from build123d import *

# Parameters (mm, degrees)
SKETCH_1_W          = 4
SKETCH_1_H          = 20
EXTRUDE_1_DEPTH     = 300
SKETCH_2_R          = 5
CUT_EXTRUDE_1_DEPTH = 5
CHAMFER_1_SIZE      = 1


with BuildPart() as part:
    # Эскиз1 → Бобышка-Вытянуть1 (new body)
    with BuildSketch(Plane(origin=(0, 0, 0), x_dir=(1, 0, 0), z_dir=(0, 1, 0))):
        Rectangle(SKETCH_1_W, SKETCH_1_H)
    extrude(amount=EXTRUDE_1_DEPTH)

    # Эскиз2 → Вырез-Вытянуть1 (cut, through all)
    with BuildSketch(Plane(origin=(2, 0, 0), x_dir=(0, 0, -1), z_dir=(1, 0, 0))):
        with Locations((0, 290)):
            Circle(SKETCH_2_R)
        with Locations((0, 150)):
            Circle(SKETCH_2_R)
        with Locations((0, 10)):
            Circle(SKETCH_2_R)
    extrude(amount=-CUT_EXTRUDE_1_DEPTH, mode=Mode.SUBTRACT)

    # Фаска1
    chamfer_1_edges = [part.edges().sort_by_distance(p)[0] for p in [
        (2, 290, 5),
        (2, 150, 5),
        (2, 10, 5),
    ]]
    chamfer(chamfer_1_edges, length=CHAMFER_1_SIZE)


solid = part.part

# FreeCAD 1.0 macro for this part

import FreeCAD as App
import Part
import Sketcher
Q = App.Units.Quantity


def edges_at(feature, points):
    """Names of the edges that pass closest to the given points."""
    edges = feature.Shape.Edges
    near = lambda p: min(range(len(edges)), key=lambda i: edges[i].distToShape(Part.Vertex(*p))[0])
    return sorted({f"Edge{near(p) + 1}" for p in points})


def add_polygon(sketch, points):
    """Adds a closed chain of lines whose ends are joined by coincident constraints."""
    first, n = sketch.GeometryCount, len(points)
    for a, b in zip(points, points[1:] + points[:1]):
        sketch.addGeometry(Part.LineSegment(App.Vector(*a, 0), App.Vector(*b, 0)), False)
    for i in range(n):
        sketch.addConstraint(Sketcher.Constraint("Coincident", first + i, 2, first + (i + 1) % n, 1))

doc = App.newDocument("Part")
body = doc.addObject("PartDesign::Body", "Body")

# Sketch on XZ plane
sketch1 = body.newObject("Sketcher::SketchObject", "Sketch")
sketch1.AttachmentSupport = (doc.getObject("XZ_Plane"), [""])
sketch1.MapMode = "FlatFace"
add_polygon(sketch1, [(-2, -10), (-2, 10), (2, 10), (2, -10)])  # lines 0-3
sketch1.addConstraint([
    Sketcher.Constraint("Vertical", 0),
    Sketcher.Constraint("Horizontal", 1),
    Sketcher.Constraint("Vertical", 2),
    Sketcher.Constraint("Horizontal", 3),
    Sketcher.Constraint("Symmetric", 0, 2, 2, 2, -1, 1),
    Sketcher.Constraint("DistanceX", 1, 1, 1, 2, Q("4 mm")),
    Sketcher.Constraint("DistanceY", 0, 1, 0, 2, Q("20 mm")),
])
pad1 = body.newObject("PartDesign::Pad", "Pad")
pad1.Profile = sketch1
pad1.Length = 300
pad1.Reversed = True

# Sketch on YZ plane
sketch2 = body.newObject("Sketcher::SketchObject", "Sketch001")
sketch2.AttachmentSupport = (doc.getObject("YZ_Plane"), [""])
sketch2.MapMode = "FlatFace"
sketch2.AttachmentOffset = App.Placement(App.Vector(0, 0, 2), App.Rotation())
sketch2.addGeometry([
    Part.Circle(App.Vector(290, 0, 0), App.Vector(0, 0, 1), 5),
    Part.Circle(App.Vector(150, 0, 0), App.Vector(0, 0, 1), 5),
    Part.Circle(App.Vector(10, 0, 0), App.Vector(0, 0, 1), 5),
], False)
sketch2.addConstraint([
    Sketcher.Constraint("Equal", 0, 1),
    Sketcher.Constraint("Equal", 1, 2),
    Sketcher.Constraint("PointOnObject", 0, 3, -1),
    Sketcher.Constraint("PointOnObject", 1, 3, -1),
    Sketcher.Constraint("PointOnObject", 2, 3, -1),
    Sketcher.Constraint("Diameter", 0, Q("10 mm")),
    Sketcher.Constraint("DistanceX", -1, 1, 0, 3, Q("290 mm")),
    Sketcher.Constraint("DistanceX", -1, 1, 1, 3, Q("150 mm")),
    Sketcher.Constraint("DistanceX", -1, 1, 2, 3, Q("10 mm")),
])
pocket1 = body.newObject("PartDesign::Pocket", "Pocket")
pocket1.Profile = sketch2
pocket1.Type = "ThroughAll"
doc.recompute()

chamfer = body.newObject("PartDesign::Chamfer", "Chamfer")
chamfer.Base = (pocket1, edges_at(pocket1, [(2, 290, 5), (2, 150, 5), (2, 10, 5)]))
chamfer.Size = 1

doc.recompute()
